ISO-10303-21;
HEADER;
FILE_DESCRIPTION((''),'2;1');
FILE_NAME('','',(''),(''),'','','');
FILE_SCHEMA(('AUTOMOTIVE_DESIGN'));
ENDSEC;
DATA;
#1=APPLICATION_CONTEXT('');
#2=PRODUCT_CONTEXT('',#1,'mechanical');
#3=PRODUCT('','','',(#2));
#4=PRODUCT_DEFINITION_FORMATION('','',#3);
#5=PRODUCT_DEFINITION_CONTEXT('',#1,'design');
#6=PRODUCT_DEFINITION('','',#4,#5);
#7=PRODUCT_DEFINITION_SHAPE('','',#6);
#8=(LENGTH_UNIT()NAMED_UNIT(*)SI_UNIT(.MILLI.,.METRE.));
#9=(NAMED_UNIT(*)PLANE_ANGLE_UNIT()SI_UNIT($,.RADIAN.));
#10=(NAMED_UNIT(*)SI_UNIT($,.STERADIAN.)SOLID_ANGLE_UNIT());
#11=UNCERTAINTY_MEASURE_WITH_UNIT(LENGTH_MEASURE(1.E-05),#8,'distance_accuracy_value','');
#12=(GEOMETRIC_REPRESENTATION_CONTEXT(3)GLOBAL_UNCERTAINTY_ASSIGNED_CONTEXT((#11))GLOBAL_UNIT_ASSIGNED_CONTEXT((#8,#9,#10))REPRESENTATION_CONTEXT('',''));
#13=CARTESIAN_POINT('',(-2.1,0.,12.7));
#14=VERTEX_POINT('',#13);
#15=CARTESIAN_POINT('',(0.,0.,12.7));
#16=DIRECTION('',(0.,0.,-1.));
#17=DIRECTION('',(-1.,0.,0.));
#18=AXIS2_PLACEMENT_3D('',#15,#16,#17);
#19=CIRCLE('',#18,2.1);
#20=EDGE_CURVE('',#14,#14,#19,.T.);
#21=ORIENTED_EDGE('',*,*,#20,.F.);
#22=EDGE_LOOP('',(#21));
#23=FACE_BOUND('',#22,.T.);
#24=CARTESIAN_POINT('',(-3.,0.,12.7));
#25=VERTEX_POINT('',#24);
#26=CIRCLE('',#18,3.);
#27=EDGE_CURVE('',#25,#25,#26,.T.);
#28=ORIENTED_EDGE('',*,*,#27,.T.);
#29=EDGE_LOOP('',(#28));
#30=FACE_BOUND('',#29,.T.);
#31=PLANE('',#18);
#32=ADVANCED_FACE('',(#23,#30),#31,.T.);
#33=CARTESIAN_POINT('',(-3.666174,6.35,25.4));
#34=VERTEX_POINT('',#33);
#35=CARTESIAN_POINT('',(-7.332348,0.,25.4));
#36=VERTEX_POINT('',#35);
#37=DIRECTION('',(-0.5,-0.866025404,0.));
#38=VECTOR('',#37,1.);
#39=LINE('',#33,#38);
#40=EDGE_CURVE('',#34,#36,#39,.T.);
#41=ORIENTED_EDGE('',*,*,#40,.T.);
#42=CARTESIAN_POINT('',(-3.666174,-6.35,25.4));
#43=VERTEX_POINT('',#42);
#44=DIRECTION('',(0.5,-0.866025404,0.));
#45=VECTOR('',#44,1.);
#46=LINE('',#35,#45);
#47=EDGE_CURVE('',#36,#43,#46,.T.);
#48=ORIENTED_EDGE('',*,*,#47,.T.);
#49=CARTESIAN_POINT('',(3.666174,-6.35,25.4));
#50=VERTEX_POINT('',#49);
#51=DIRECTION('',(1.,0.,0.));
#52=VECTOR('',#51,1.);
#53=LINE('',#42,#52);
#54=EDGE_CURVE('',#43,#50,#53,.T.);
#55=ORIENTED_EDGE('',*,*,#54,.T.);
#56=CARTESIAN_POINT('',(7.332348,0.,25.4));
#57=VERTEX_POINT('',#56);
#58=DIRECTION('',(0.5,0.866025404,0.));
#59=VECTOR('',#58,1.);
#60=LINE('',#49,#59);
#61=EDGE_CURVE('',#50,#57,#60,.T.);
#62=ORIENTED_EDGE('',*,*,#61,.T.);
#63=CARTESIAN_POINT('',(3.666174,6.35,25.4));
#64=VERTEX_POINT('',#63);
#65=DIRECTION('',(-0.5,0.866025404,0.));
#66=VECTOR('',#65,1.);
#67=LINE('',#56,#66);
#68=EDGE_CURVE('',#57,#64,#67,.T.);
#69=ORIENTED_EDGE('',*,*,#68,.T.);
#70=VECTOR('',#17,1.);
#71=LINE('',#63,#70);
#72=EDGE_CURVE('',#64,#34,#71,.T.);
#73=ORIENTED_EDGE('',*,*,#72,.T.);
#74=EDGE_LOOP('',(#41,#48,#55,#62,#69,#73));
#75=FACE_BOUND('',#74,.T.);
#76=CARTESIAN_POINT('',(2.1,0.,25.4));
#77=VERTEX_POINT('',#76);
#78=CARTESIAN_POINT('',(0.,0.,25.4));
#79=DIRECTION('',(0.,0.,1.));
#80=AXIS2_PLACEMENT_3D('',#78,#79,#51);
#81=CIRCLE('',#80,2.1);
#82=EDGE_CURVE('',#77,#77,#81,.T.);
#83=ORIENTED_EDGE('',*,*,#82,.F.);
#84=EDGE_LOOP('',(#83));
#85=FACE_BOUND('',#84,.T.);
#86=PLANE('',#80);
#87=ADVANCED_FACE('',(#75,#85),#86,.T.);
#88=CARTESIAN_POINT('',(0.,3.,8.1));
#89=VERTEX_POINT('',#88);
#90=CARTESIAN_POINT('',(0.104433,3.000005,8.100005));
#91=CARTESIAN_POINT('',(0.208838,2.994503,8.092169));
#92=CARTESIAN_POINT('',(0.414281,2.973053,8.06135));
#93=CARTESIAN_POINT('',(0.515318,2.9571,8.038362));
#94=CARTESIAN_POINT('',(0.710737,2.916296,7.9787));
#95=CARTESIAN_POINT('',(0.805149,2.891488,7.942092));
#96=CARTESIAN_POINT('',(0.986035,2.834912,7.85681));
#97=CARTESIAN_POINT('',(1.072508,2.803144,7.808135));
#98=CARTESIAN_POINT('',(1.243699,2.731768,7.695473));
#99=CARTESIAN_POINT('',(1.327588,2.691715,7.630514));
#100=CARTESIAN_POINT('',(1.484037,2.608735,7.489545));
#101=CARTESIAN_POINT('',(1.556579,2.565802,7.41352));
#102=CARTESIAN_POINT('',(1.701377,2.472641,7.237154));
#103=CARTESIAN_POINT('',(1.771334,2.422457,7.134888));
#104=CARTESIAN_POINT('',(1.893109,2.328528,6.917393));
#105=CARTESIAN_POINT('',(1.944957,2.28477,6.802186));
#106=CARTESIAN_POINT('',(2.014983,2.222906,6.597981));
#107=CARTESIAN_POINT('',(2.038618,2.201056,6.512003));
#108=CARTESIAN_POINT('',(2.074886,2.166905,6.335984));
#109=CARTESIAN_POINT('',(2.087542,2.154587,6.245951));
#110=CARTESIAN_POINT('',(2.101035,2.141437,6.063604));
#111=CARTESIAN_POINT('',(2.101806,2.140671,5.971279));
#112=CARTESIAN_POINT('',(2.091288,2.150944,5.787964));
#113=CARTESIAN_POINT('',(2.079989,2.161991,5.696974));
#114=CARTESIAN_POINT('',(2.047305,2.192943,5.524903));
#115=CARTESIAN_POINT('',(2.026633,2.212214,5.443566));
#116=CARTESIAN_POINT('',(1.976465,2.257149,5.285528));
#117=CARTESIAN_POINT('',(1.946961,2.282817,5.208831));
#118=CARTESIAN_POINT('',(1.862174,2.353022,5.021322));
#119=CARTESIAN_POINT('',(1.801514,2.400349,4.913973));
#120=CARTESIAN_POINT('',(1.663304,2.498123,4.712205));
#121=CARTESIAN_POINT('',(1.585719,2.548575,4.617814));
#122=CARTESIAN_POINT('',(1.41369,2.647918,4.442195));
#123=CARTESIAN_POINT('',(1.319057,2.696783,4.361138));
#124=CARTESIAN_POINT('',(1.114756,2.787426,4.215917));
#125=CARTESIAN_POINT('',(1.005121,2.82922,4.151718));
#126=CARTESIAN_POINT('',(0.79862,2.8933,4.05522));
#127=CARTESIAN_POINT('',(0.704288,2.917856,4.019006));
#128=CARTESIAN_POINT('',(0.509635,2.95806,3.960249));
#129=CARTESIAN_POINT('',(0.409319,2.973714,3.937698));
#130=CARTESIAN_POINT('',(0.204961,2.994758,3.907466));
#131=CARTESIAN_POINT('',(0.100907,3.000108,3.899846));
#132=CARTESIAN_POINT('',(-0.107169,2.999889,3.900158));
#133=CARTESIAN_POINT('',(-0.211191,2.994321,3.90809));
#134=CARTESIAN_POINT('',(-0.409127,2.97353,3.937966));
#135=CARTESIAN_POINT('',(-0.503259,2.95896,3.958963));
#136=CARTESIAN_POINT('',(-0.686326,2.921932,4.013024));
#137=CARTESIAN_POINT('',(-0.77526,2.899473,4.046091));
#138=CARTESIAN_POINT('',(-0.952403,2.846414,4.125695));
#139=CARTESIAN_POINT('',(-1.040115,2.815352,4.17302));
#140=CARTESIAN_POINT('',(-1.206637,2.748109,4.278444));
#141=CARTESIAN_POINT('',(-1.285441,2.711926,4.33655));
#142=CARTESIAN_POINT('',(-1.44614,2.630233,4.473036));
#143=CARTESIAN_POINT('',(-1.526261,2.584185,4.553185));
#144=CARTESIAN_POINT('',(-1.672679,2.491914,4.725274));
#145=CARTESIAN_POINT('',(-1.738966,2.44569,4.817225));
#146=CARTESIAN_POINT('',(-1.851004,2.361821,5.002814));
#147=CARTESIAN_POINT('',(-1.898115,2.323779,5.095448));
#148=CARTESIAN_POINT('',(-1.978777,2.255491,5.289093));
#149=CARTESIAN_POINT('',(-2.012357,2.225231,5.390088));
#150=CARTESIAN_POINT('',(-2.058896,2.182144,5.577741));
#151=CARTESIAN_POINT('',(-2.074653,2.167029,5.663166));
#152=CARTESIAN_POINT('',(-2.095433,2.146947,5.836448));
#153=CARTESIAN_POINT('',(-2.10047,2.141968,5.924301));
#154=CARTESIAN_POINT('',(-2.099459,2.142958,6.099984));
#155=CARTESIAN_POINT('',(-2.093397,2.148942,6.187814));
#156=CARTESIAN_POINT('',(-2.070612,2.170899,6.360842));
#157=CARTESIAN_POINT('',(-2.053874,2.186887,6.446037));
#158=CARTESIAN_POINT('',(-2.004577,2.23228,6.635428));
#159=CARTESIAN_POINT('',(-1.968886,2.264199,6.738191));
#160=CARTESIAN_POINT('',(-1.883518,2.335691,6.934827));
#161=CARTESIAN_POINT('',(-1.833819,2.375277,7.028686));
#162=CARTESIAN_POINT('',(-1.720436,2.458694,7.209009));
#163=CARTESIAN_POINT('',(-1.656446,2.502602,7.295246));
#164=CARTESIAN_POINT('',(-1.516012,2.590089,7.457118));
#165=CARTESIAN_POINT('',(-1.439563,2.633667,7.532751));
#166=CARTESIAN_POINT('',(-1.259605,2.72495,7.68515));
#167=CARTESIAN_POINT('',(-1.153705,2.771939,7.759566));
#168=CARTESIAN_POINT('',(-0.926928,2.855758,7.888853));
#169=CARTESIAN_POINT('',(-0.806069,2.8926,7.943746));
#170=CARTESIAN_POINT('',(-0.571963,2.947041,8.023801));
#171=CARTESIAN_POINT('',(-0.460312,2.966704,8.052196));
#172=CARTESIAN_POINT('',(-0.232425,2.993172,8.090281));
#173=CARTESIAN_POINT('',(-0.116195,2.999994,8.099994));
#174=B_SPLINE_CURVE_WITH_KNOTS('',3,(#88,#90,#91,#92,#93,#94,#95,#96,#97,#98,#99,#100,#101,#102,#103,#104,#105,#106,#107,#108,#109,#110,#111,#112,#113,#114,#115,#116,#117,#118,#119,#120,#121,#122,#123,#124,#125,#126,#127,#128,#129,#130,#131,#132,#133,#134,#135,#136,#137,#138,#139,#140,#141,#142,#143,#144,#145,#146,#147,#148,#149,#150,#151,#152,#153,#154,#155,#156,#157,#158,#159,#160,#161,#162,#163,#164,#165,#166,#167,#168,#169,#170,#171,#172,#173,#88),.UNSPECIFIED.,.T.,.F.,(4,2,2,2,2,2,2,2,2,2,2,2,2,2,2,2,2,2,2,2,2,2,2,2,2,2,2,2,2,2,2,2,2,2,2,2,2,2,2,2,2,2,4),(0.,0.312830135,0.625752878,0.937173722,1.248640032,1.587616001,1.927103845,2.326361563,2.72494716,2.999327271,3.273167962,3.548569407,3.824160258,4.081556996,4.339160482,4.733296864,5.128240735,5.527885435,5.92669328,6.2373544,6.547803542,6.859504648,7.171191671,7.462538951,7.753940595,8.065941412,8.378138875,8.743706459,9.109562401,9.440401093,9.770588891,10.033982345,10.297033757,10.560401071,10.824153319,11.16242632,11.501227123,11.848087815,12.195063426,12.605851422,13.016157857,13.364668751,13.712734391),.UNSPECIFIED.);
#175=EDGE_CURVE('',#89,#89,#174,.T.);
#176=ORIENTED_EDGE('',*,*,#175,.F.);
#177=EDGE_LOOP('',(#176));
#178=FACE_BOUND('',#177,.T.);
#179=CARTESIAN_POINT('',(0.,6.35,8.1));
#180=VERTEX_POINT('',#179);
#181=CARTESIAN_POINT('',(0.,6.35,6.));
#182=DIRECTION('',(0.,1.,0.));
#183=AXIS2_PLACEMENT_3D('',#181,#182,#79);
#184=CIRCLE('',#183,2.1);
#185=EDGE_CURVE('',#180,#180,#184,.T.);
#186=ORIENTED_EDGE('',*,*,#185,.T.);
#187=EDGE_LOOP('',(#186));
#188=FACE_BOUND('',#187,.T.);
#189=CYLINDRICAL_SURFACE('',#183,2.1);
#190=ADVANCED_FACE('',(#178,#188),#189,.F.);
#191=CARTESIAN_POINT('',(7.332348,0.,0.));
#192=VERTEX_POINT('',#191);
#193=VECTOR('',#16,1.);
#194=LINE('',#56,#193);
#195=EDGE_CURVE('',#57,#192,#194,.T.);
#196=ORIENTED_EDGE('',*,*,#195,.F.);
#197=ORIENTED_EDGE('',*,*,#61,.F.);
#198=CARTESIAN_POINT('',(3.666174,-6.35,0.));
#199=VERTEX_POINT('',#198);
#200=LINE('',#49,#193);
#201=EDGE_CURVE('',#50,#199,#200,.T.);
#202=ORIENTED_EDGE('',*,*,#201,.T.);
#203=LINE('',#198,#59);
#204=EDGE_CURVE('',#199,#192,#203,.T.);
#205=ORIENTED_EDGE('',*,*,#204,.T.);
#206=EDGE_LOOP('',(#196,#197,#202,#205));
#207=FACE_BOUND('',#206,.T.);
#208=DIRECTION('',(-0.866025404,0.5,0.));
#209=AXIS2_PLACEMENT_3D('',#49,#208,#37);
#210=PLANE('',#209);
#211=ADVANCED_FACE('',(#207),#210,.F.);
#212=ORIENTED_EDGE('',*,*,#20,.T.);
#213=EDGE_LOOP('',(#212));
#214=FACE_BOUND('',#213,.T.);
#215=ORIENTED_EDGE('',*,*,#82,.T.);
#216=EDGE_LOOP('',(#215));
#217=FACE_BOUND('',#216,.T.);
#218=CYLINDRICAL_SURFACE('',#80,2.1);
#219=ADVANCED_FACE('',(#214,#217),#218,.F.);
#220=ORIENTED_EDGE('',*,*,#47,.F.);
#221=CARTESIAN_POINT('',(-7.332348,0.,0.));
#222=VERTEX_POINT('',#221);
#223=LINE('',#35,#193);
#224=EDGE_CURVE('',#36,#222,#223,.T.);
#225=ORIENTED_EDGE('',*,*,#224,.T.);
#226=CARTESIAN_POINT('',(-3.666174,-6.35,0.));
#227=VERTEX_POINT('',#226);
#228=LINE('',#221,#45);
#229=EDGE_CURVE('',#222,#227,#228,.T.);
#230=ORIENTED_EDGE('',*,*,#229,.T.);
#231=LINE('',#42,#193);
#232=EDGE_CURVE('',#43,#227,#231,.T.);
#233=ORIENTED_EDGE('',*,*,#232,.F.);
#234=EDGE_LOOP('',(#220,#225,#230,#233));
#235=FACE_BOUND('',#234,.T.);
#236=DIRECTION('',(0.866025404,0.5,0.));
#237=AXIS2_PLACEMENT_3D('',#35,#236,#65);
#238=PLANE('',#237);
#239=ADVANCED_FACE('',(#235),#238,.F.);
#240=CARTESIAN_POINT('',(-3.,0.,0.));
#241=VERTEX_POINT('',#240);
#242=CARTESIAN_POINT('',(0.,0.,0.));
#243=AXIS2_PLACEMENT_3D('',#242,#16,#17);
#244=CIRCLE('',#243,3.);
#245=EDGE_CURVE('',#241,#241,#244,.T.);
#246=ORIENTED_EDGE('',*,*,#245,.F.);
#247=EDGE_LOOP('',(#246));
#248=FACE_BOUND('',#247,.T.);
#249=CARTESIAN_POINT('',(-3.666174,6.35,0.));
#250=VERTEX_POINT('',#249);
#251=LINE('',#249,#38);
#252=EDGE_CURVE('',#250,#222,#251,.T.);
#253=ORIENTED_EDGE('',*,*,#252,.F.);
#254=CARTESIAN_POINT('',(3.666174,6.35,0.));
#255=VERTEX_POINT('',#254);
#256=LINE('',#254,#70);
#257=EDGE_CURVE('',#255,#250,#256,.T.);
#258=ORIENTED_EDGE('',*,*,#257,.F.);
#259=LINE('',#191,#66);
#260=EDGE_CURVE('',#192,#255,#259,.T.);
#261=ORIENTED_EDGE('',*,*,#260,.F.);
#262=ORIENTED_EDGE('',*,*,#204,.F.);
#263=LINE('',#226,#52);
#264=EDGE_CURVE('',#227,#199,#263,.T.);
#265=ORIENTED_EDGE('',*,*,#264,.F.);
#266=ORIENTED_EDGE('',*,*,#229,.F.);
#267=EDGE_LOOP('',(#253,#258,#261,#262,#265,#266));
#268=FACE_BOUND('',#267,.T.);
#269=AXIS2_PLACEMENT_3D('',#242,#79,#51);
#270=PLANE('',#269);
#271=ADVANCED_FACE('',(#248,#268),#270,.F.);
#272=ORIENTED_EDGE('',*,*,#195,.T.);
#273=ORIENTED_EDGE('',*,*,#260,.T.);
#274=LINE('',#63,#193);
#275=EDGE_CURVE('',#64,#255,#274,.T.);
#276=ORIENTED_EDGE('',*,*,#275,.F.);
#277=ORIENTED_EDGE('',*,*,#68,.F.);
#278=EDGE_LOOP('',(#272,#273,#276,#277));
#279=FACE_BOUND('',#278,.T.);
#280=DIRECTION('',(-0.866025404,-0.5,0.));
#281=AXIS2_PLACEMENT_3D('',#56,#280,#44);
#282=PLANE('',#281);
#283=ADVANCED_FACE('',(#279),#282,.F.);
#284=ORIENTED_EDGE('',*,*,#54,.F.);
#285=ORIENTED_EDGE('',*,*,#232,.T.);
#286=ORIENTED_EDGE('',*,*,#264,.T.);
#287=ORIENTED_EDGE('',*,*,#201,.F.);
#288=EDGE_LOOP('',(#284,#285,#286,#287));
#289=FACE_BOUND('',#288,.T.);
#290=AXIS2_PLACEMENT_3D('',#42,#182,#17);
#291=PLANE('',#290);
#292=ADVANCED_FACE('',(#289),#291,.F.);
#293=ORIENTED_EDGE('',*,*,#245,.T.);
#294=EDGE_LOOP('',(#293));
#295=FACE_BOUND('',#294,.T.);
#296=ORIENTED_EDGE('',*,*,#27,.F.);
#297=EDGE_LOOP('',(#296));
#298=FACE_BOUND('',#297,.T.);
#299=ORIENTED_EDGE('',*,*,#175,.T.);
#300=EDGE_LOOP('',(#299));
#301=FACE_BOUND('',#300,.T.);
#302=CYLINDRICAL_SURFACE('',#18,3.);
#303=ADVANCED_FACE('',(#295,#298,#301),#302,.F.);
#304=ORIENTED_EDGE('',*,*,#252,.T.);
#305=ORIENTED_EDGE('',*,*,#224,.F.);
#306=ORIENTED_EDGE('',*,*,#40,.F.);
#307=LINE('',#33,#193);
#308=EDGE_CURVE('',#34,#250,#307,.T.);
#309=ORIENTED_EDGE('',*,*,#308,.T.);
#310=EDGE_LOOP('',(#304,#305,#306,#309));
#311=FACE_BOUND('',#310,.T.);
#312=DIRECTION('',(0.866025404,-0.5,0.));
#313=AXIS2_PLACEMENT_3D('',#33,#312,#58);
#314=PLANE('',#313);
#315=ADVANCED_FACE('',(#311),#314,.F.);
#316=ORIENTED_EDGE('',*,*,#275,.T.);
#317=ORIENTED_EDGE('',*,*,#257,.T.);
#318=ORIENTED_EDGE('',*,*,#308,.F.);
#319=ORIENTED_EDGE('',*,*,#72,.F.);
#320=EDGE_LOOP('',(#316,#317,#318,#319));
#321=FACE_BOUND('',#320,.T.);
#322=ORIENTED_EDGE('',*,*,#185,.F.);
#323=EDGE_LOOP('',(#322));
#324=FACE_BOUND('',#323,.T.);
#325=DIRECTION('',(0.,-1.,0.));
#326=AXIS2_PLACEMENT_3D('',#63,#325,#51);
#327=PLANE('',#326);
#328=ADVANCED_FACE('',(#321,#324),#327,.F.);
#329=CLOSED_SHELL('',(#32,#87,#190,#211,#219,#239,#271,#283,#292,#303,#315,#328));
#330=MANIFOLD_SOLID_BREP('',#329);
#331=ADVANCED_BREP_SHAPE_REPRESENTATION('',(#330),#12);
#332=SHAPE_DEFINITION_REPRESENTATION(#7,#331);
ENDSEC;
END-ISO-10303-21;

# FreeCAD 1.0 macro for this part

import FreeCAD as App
import Part
import Sketcher
Q = App.Units.Quantity


def add_polygon(sketch, points):
    """Adds a closed chain of lines whose ends are joined by coincident constraints."""
    first, n = sketch.GeometryCount, len(points)
    for a, b in zip(points, points[1:] + points[:1]):
        sketch.addGeometry(Part.LineSegment(App.Vector(*a, 0), App.Vector(*b, 0)), False)
    for i in range(n):
        sketch.addConstraint(Sketcher.Constraint("Coincident", first + i, 2, first + (i + 1) % n, 1))

doc = App.newDocument("Part")
body = doc.addObject("PartDesign::Body", "Body")

sketch1 = body.newObject("Sketcher::SketchObject", "Sketch")
sketch1.AttachmentSupport = (doc.getObject("XY_Plane"), [""])
sketch1.MapMode = "FlatFace"
add_polygon(sketch1, [(7, 0), (4, 6), (-4, 6), (-7, 0), (-4, -6), (4, -6)])
sketch1.addConstraint(Sketcher.Constraint("Horizontal", 1))
sketch1.addConstraint(Sketcher.Constraint("Horizontal", 4))
sketch1.addConstraint(Sketcher.Constraint("Symmetric", 0, 2, 3, 2, -1, 1))
sketch1.addConstraint(Sketcher.Constraint("Symmetric", 2, 2, 5, 2, -1, 1))
sketch1.addConstraint(Sketcher.Constraint("PointOnObject", 2, 2, -1))
sketch1.addConstraint(Sketcher.Constraint("Parallel", 2, 5))
sketch1.addConstraint(Sketcher.Constraint("Vertical", 1, 2, 3, 2))
sketch1.addConstraint(Sketcher.Constraint("Angle", 0, Q("120 deg")))
sketch1.addConstraint(Sketcher.Constraint("DistanceY", 3, 2, 1, 2, 12.7))
sketch1.addConstraint(Sketcher.Constraint("DistanceX", 1, 2, 1, 1, 7.332348))
pad1 = body.newObject("PartDesign::Pad", "Pad")
pad1.Profile = sketch1
pad1.Length = 25.4

sketch2 = body.newObject("Sketcher::SketchObject", "Sketch001")
sketch2.AttachmentSupport = (doc.getObject("XY_Plane"), [""])
sketch2.MapMode = "FlatFace"
sketch2.addGeometry(Part.Circle(App.Vector(0, 0, 0), App.Vector(0, 0, 1), 3), False)
sketch2.addConstraint(Sketcher.Constraint("Coincident", 0, 3, -1, 1))
sketch2.addConstraint(Sketcher.Constraint("Diameter", 0, 6.0))
pocket1 = body.newObject("PartDesign::Pocket", "Pocket")
pocket1.Profile = sketch2
pocket1.Length = 12.7
pocket1.Reversed = True

sketch3 = body.newObject("Sketcher::SketchObject", "Sketch002")
sketch3.AttachmentSupport = (doc.getObject("XY_Plane"), [""])
sketch3.MapMode = "FlatFace"
sketch3.AttachmentOffset = App.Placement(App.Vector(0, 0, 25.4), App.Rotation())
sketch3.addGeometry(Part.Circle(App.Vector(0, 0, 0), App.Vector(0, 0, 1), 2.1), False)
sketch3.addConstraint(Sketcher.Constraint("Coincident", 0, 3, -1, 1))
sketch3.addConstraint(Sketcher.Constraint("Diameter", 0, 4.2))
doc.recompute()
hole = body.newObject("PartDesign::Hole", "Hole")
hole.Profile = sketch3
hole.ThreadType = "None"
hole.Diameter = 4.2
hole.DepthType = "ThroughAll"

sketch4 = body.newObject("Sketcher::SketchObject", "Sketch003")
sketch4.AttachmentSupport = (doc.getObject("XZ_Plane"), [""])
sketch4.MapMode = "FlatFace"
sketch4.AttachmentOffset = App.Placement(App.Vector(0, 0, -6.35), App.Rotation())
sketch4.addGeometry(Part.Circle(App.Vector(0, 6, 0), App.Vector(0, 0, 1), 2.1), False)
sketch4.addConstraint(Sketcher.Constraint("PointOnObject", 0, 3, -2))
sketch4.addConstraint(Sketcher.Constraint("Diameter", 0, 4.2))
sketch4.addConstraint(Sketcher.Constraint("DistanceY", -1, 1, 0, 3, 6.0))
pocket2 = body.newObject("PartDesign::Pocket", "Pocket001")
pocket2.Profile = sketch4
pocket2.Type = "UpToFirst"
pocket2.Reversed = True

doc.recompute()
